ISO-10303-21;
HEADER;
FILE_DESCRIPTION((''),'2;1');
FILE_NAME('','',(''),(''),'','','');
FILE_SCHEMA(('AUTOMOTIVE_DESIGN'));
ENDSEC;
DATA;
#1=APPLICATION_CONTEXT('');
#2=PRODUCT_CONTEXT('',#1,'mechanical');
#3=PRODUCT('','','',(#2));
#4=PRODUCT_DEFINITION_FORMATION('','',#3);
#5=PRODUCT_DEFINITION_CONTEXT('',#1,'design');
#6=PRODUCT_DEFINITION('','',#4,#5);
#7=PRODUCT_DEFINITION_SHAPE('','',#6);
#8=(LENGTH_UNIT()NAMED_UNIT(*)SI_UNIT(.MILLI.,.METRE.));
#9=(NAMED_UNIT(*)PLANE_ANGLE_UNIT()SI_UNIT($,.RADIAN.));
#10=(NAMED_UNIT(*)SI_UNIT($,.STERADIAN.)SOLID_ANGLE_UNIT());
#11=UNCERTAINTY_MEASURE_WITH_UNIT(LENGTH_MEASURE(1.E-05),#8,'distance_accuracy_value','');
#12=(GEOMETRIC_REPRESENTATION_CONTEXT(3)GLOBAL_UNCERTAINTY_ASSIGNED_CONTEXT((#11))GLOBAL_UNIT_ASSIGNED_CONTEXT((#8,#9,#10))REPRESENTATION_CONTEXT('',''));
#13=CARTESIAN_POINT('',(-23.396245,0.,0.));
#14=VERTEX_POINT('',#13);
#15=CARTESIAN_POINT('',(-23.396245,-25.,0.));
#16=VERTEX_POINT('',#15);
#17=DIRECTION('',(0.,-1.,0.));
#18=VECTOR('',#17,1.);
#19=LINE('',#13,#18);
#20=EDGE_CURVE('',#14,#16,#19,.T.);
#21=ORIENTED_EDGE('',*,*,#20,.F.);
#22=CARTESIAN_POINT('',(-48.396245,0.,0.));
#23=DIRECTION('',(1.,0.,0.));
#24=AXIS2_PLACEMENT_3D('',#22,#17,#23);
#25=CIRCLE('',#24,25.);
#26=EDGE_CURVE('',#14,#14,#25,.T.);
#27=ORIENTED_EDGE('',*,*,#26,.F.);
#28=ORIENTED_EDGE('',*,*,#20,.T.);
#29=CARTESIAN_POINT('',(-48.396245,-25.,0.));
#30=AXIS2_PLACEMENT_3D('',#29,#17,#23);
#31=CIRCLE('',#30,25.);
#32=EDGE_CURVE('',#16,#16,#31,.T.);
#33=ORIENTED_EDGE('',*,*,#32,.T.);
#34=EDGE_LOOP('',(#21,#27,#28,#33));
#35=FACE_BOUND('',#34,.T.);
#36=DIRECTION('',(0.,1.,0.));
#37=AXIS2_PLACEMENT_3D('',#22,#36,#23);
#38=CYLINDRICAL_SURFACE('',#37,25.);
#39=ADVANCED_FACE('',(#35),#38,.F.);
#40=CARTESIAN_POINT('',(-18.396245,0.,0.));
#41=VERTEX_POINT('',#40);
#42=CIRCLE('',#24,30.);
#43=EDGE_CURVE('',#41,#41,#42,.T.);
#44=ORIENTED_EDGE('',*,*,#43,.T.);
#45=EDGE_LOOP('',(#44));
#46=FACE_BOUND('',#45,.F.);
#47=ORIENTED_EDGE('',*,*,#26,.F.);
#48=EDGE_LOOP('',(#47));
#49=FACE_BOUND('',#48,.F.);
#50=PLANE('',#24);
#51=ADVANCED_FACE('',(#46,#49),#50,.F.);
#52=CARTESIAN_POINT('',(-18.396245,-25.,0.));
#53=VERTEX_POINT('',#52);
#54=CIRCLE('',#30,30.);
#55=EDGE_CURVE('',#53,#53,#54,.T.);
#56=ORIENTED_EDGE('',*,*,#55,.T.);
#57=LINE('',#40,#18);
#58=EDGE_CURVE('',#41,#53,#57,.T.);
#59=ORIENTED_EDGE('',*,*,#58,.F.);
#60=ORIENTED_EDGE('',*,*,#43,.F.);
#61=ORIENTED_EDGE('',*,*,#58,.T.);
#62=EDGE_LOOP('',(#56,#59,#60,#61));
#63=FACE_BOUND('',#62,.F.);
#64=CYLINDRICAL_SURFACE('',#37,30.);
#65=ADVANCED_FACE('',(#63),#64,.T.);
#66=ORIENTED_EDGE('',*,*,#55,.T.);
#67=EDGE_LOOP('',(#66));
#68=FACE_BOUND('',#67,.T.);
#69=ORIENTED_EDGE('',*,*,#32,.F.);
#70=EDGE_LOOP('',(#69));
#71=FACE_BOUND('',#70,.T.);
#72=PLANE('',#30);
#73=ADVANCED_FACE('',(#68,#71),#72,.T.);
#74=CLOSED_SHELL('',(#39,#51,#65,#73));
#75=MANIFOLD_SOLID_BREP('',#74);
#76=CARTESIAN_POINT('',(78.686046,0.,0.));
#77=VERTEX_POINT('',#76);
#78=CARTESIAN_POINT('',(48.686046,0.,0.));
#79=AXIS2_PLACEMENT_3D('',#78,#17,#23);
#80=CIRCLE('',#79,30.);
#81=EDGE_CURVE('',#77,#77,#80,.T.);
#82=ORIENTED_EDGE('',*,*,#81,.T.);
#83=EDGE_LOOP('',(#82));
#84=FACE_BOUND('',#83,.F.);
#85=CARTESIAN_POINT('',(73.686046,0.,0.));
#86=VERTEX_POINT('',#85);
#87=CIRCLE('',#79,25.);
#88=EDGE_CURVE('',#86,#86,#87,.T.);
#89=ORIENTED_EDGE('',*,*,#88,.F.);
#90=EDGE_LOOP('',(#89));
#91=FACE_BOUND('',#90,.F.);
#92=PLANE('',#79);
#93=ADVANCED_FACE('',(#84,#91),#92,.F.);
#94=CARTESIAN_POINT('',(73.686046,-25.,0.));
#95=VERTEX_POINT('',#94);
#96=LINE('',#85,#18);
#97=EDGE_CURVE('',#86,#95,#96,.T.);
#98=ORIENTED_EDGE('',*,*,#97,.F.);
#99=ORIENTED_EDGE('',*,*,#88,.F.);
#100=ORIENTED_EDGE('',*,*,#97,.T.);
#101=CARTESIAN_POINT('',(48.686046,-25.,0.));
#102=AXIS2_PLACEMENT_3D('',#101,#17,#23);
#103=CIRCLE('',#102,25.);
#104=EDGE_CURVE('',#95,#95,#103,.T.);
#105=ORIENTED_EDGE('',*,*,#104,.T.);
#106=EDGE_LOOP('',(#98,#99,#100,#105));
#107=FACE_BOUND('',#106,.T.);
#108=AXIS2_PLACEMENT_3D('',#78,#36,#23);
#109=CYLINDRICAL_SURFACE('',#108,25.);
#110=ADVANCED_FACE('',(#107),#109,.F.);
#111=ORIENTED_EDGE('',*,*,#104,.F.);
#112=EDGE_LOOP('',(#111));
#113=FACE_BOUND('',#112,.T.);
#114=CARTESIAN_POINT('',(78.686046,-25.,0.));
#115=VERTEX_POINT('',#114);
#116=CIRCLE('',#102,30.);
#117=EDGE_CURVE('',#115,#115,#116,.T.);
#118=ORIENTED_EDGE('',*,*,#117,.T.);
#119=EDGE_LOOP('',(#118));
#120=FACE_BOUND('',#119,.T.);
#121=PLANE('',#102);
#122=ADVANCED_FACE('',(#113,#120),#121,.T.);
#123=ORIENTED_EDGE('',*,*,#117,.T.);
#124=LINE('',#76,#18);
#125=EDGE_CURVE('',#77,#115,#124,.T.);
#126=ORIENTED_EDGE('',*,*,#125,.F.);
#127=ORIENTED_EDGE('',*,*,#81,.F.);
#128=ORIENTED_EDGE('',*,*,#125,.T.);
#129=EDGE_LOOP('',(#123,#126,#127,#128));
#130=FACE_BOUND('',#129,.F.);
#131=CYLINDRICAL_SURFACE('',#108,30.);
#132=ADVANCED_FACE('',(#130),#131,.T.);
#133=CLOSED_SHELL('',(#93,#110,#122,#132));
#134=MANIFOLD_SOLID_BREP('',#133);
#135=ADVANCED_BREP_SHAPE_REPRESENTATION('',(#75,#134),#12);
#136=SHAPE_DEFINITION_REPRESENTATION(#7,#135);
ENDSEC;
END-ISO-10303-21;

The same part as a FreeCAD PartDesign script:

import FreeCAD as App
import Part
import Sketcher
Q = App.Units.Quantity

doc = App.newDocument("Part")
body = doc.addObject("PartDesign::Body", "Body")
body.AllowCompound = True

# Sketch on XZ plane
sketch1 = body.newObject("Sketcher::SketchObject", "Sketch")
sketch1.AttachmentSupport = (doc.getObject("XZ_Plane"), [""])
sketch1.MapMode = "FlatFace"
sketch1.addGeometry([
    Part.Circle(App.Vector(-48, 0, 0), App.Vector(0, 0, 1), 30),
    Part.Circle(App.Vector(-48, 0, 0), App.Vector(0, 0, 1), 25),
    Part.Circle(App.Vector(49, 0, 0), App.Vector(0, 0, 1), 30),
    Part.Circle(App.Vector(49, 0, 0), App.Vector(0, 0, 1), 25),
], False)
sketch1.addConstraint([
    Sketcher.Constraint("Coincident", 1, 3, 0, 3),
    Sketcher.Constraint("Coincident", 3, 3, 2, 3),
    Sketcher.Constraint("Equal", 0, 2),
    Sketcher.Constraint("Equal", 1, 3),
    Sketcher.Constraint("PointOnObject", 0, 3, -1),
    Sketcher.Constraint("PointOnObject", 2, 3, -1),
    Sketcher.Constraint("Diameter", 0, Q("60 mm")),
    Sketcher.Constraint("Diameter", 1, Q("50 mm")),
    Sketcher.Constraint("DistanceX", 0, 3, 2, 3, Q("97.082291 mm")),
    Sketcher.Constraint("DistanceX", 0, 3, -1, 1, Q("48.396245 mm")),
])
pad1 = body.newObject("PartDesign::Pad", "Pad")
pad1.Profile = sketch1
pad1.Length = 25

doc.recompute()
